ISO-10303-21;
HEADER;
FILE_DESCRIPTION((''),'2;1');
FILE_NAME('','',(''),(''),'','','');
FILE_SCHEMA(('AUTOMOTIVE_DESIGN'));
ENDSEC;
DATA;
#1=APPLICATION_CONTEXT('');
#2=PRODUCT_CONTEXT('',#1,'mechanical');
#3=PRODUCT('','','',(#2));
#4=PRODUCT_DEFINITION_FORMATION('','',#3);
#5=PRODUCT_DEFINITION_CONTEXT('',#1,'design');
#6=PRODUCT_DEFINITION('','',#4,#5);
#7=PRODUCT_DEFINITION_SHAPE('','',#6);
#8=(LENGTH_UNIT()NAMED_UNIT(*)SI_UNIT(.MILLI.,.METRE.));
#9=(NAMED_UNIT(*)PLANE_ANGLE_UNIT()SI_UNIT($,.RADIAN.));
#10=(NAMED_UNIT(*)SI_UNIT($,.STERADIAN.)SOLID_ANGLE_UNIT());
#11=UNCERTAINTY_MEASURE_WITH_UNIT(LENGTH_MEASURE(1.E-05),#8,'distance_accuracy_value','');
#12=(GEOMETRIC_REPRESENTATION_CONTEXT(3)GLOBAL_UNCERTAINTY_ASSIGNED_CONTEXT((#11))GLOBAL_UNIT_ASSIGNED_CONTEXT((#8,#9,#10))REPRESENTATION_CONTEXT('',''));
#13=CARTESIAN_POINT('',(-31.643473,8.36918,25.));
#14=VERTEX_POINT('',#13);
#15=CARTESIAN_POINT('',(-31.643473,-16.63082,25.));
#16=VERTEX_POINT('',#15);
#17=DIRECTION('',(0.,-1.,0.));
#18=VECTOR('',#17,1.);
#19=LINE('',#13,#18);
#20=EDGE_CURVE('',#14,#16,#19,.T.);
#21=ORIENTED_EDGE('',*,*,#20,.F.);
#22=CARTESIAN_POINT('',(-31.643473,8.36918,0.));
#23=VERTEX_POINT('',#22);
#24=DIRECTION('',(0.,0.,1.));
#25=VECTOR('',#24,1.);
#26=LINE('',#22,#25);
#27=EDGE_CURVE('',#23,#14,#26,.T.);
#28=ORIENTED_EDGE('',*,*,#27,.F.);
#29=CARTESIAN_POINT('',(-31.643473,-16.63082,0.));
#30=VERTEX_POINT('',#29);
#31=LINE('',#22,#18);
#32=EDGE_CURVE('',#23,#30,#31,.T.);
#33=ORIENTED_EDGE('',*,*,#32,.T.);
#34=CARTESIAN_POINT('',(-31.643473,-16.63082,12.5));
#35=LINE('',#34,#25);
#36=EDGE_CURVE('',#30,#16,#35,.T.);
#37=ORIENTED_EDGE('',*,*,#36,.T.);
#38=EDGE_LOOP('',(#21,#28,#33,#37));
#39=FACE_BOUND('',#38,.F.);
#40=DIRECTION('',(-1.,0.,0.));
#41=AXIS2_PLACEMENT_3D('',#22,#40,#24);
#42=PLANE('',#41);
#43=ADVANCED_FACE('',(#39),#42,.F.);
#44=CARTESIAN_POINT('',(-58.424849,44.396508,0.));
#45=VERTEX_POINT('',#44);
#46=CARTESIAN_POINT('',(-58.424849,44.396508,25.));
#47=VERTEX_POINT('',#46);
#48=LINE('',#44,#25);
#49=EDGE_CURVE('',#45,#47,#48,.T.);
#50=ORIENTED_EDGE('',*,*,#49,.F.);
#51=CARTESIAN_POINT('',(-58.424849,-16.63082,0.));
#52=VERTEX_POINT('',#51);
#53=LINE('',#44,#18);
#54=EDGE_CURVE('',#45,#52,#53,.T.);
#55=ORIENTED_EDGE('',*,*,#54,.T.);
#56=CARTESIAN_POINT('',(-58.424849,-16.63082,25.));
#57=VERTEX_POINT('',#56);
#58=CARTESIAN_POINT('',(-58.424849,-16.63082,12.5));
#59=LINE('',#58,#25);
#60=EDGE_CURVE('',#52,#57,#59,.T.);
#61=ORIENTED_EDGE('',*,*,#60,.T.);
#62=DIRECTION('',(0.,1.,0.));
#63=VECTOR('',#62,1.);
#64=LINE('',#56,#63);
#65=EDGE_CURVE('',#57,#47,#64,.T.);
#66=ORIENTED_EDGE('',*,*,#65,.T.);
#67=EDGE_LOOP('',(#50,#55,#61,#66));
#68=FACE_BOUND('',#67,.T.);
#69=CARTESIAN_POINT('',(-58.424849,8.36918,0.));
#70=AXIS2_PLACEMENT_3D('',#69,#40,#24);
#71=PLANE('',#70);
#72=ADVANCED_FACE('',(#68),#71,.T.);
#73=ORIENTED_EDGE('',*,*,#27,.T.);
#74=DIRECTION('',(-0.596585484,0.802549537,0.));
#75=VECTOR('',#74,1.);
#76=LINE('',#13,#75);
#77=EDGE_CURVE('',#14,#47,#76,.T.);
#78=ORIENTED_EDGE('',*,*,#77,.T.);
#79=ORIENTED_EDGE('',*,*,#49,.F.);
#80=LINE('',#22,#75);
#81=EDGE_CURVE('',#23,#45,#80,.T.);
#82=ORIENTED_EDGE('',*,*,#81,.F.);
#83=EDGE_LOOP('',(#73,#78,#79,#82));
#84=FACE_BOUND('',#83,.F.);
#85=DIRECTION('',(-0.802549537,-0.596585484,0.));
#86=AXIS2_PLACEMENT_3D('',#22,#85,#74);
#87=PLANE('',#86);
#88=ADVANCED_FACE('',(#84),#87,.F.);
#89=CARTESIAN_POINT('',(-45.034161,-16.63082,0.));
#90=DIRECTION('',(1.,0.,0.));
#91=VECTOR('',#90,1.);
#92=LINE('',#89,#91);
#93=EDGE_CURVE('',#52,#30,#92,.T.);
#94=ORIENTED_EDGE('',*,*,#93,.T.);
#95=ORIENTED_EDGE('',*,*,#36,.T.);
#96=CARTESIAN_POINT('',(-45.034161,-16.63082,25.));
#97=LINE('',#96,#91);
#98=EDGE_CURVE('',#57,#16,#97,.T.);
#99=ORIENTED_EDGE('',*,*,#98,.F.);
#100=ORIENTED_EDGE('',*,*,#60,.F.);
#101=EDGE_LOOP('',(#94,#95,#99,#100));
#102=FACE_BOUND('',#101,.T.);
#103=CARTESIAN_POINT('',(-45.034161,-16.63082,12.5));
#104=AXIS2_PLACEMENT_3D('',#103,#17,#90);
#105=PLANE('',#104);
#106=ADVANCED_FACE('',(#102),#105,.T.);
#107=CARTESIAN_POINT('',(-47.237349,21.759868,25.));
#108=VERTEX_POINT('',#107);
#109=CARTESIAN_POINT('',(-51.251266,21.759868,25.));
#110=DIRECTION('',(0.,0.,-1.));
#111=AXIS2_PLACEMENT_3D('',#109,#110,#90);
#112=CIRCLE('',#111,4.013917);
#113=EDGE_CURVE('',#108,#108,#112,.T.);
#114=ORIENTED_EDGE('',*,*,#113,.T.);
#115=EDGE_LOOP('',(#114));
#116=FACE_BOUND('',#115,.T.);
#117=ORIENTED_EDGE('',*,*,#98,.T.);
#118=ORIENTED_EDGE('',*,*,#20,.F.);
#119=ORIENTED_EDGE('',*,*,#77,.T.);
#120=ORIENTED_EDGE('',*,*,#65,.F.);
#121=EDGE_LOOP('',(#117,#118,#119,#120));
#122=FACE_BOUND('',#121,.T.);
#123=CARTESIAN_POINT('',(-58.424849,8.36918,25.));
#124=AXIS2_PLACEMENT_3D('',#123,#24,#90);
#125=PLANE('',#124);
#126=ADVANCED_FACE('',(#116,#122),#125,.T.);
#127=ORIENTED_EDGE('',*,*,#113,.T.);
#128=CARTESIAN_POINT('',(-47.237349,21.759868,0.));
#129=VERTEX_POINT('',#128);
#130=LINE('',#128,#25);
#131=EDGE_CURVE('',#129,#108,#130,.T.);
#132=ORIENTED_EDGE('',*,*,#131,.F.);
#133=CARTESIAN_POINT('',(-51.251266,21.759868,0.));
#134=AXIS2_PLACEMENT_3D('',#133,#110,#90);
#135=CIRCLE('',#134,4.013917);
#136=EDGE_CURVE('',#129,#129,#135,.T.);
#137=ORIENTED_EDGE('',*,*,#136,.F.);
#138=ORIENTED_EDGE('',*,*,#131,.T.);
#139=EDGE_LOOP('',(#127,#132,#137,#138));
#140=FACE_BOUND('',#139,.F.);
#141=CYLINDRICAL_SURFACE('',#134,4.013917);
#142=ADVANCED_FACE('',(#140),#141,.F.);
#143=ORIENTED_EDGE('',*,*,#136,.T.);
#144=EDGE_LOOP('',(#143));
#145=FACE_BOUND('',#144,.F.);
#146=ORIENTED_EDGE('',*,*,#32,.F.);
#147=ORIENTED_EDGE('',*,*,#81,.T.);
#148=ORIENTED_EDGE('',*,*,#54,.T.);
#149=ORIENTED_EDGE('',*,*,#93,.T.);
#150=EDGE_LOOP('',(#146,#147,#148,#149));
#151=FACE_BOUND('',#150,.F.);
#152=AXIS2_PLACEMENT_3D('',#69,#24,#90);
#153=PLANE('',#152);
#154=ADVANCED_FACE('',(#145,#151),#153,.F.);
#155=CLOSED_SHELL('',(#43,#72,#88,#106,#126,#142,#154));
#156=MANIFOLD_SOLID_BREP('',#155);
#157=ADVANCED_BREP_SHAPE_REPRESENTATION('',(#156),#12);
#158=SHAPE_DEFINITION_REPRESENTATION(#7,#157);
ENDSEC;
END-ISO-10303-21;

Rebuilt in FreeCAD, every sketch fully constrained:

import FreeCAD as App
import Part
import Sketcher


def add_polygon(sketch, points):
    """Adds a closed chain of lines whose ends are joined by coincident constraints."""
    first, n = sketch.GeometryCount, len(points)
    for a, b in zip(points, points[1:] + points[:1]):
        sketch.addGeometry(Part.LineSegment(App.Vector(*a, 0), App.Vector(*b, 0)), False)
    for i in range(n):
        sketch.addConstraint(Sketcher.Constraint("Coincident", first + i, 2, first + (i + 1) % n, 1))

doc = App.newDocument("Part")
body = doc.addObject("PartDesign::Body", "Body")

# Sketch on XY plane
sketch1 = body.newObject("Sketcher::SketchObject", "Sketch")
sketch1.AttachmentSupport = (doc.getObject("XY_Plane"), [""])
sketch1.MapMode = "FlatFace"
add_polygon(sketch1, [(-31.643473, 8.36918), (-58.424849, 44.396508), (-58.424849, 8.36918)])  # lines 0-2
sketch1.addConstraint([
    Sketcher.Constraint("Vertical", 1),
    Sketcher.Constraint("Horizontal", 2),
    Sketcher.Constraint("DistanceX", 2, 1, 2, 2, 26.781376),
    Sketcher.Constraint("DistanceY", 1, 2, 1, 1, 36.027328),
    Sketcher.Constraint("DistanceX", 0, 2, -1, 1, 58.424849),
    Sketcher.Constraint("DistanceY", -1, 1, 1, 2, 8.36918),
])
pad1 = body.newObject("PartDesign::Pad", "Pad")
pad1.Profile = sketch1
pad1.Length = 25

# Sketch on XZ plane
sketch2 = body.newObject("Sketcher::SketchObject", "Sketch001")
sketch2.AttachmentSupport = (doc.getObject("XZ_Plane"), [""])
sketch2.MapMode = "FlatFace"
sketch2.AttachmentOffset = App.Placement(App.Vector(0, 0, -8.36918), App.Rotation())
add_polygon(sketch2, [(-58.424849, 25), (-58.424849, 0), (-31.643473, 0), (-31.643473, 25)])  # lines 0-3
sketch2.addConstraint([
    Sketcher.Constraint("Vertical", 0),
    Sketcher.Constraint("Horizontal", 1),
    Sketcher.Constraint("Vertical", 2),
    Sketcher.Constraint("Horizontal", 3),
    Sketcher.Constraint("PointOnObject", 0, 2, -1),
    Sketcher.Constraint("DistanceY", 0, 2, 0, 1, 25.0),
    Sketcher.Constraint("DistanceX", 1, 1, 1, 2, 26.781376),
    Sketcher.Constraint("DistanceX", 0, 2, -1, 1, 58.424849),
])
pad2 = body.newObject("PartDesign::Pad", "Pad001")
pad2.Profile = sketch2
pad2.Length = 25

# Sketch on XY plane
sketch3 = body.newObject("Sketcher::SketchObject", "Sketch002")
sketch3.AttachmentSupport = (doc.getObject("XY_Plane"), [""])
sketch3.MapMode = "FlatFace"
sketch3.addGeometry(Part.Circle(App.Vector(-51.251266, 21.759868, 0), App.Vector(0, 0, 1), 4.013917), False)
sketch3.addConstraint([
    Sketcher.Constraint("Diameter", 0, 8.027834),
    Sketcher.Constraint("DistanceY", -1, 1, 0, 3, 21.759868),
    Sketcher.Constraint("DistanceX", 0, 3, -1, 1, 51.251266),
])
pocket1 = body.newObject("PartDesign::Pocket", "Pocket")
pocket1.Profile = sketch3
pocket1.Type = "ThroughAll"
pocket1.Reversed = True

doc.recompute()
